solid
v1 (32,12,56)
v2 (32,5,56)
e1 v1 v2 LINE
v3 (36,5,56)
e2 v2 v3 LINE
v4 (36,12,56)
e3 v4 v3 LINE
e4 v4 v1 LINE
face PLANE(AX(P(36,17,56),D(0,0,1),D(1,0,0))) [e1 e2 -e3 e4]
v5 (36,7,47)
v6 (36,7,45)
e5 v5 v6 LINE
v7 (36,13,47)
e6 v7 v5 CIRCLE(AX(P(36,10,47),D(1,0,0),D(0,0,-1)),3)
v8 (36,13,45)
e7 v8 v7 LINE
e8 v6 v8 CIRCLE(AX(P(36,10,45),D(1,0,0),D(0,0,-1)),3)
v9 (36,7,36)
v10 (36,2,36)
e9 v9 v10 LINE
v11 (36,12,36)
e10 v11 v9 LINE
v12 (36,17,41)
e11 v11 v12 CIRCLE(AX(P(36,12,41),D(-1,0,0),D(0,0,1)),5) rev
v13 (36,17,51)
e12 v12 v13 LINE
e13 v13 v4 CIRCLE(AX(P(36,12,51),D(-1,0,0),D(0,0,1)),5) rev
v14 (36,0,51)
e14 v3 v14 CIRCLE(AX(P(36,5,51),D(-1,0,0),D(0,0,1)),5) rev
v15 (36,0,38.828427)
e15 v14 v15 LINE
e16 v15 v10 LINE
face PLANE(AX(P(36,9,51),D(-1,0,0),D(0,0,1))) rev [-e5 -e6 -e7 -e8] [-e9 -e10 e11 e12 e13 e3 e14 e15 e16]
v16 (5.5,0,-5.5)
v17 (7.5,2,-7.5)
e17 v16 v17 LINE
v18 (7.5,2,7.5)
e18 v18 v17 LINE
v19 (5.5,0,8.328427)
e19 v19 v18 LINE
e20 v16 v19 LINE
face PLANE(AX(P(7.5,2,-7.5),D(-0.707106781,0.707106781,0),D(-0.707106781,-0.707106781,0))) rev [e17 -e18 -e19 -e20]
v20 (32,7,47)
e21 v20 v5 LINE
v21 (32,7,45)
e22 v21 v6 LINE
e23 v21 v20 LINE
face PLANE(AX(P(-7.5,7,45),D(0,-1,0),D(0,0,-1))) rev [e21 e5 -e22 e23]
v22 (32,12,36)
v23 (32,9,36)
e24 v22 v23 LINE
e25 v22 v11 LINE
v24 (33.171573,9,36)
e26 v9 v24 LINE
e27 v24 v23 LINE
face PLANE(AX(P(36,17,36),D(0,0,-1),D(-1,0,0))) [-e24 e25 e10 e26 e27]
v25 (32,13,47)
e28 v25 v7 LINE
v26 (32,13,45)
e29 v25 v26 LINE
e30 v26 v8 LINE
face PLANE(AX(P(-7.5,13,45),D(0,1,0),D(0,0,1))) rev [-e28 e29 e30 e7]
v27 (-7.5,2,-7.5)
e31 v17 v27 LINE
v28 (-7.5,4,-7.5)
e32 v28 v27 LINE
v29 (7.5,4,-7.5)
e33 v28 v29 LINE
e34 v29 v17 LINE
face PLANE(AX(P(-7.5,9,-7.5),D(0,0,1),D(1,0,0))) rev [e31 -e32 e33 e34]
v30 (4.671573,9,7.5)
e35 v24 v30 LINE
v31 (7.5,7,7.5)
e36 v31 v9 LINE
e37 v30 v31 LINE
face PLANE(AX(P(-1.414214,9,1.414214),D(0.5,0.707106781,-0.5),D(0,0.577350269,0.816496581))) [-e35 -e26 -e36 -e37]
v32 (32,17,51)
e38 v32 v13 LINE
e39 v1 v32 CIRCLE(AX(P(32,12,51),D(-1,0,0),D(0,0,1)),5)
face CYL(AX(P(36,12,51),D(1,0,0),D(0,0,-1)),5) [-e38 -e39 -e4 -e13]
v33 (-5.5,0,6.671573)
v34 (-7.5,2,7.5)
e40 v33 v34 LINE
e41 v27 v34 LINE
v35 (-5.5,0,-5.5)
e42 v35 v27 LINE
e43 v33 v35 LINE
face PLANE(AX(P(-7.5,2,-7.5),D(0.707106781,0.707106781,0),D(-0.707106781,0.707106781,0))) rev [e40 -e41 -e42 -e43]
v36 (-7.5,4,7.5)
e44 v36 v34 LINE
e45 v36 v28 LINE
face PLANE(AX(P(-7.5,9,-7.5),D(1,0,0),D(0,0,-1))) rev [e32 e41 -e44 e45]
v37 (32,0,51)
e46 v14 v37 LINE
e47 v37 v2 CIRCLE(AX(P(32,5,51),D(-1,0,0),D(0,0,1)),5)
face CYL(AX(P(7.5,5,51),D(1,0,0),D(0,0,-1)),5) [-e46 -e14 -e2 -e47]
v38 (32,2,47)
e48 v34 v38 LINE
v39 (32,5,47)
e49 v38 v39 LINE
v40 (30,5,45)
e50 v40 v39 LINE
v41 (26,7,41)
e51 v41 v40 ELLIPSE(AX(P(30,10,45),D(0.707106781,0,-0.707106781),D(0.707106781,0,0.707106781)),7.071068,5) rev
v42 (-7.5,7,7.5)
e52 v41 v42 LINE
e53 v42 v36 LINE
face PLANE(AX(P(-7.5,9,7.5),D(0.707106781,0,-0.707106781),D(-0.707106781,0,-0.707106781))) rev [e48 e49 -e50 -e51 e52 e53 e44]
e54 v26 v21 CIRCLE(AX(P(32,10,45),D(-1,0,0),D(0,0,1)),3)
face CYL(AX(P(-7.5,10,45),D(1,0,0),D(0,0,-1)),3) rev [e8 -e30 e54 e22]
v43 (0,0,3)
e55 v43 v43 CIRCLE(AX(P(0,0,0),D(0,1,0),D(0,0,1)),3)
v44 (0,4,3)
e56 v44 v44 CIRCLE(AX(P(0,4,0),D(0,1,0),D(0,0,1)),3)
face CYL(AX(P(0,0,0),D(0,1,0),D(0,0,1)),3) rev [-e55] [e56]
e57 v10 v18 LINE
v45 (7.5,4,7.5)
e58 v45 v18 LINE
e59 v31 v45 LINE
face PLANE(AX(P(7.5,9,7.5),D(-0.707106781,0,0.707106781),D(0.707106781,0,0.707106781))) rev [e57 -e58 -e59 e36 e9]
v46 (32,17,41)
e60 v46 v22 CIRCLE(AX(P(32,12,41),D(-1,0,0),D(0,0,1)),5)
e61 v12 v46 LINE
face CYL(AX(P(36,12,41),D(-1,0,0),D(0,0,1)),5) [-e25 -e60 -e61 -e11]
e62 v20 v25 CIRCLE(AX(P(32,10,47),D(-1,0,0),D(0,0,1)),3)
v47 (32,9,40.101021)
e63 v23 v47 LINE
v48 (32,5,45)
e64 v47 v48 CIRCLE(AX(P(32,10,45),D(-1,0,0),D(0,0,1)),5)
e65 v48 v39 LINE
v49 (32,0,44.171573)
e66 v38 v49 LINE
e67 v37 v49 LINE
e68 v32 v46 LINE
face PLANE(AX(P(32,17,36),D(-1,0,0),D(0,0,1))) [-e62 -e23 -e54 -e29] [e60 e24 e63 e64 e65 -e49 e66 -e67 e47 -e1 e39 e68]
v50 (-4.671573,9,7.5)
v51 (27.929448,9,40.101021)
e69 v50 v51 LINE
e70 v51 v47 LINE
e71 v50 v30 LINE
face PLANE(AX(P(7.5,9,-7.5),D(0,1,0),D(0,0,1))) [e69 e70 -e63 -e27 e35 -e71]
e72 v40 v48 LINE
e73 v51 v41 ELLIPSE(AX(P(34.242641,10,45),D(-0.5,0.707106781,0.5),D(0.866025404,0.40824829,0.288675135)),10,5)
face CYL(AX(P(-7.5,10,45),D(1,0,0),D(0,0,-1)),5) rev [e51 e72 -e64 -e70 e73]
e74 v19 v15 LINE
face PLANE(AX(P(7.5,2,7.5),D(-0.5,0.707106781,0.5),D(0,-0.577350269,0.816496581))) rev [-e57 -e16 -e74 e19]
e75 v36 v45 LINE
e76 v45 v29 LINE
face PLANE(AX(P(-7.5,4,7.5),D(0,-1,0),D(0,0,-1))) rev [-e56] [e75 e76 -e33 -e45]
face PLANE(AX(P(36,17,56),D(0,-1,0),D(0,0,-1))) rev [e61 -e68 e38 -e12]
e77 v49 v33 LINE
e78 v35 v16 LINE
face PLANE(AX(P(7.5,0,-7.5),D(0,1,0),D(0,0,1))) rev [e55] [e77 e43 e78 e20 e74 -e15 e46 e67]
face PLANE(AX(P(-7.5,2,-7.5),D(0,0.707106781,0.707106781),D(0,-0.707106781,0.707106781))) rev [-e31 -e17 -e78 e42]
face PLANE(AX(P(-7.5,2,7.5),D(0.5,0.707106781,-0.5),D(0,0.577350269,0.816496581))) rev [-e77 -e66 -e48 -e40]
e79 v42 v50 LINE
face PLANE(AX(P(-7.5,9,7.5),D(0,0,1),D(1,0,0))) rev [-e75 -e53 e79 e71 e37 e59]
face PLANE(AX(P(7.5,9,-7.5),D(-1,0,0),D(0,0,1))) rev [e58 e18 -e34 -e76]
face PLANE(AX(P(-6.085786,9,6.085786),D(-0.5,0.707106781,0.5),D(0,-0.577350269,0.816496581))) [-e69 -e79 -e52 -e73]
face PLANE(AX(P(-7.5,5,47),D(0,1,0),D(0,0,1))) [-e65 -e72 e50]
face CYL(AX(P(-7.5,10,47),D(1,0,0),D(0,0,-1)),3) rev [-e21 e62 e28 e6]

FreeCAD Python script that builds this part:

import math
import FreeCAD as App
import Part
import Sketcher
from FreeCAD import Vector


def edges_at(feature, points):
    """Names of the edges that pass closest to the given points."""
    edges = feature.Shape.Edges
    near = lambda p: min(range(len(edges)), key=lambda i: edges[i].distToShape(Part.Vertex(*p))[0])
    return sorted({f"Edge{near(p) + 1}" for p in points})


def add_polygon(sketch, points):
    """Adds a closed chain of lines whose ends are joined by coincident constraints."""
    first, n = sketch.GeometryCount, len(points)
    for a, b in zip(points, points[1:] + points[:1]):
        sketch.addGeometry(Part.LineSegment(App.Vector(*a, 0), App.Vector(*b, 0)), False)
    for i in range(n):
        sketch.addConstraint(Sketcher.Constraint("Coincident", first + i, 2, first + (i + 1) % n, 1))

doc = App.newDocument("Part")
params = doc.addObject("Spreadsheet::Sheet", "Params")
for row, (alias, value) in enumerate([
    ("sketch1_width", "15 mm"),
    ("pad1_length", "9 mm"),
    ("sketch2_width", "4 mm"),
    ("sketch2_height", "20 mm"),
    ("pad2_length", "17 mm"),
    ("sketch3_width", "5 mm"),
    ("sketch3_height", "15 mm"),
    ("sketch4_diameter", "6 mm"),
    ("sketch5_radius", "3 mm"),
    ("sketch5_height", "2 mm"),
    ("sketch6_radius", "5 mm"),
    ("sketch6_radius2", "3 mm"),
    ("sketch6_height", "2 mm"),
    ("fillet_radius", "5 mm"),
    ("chamfer_size", "2 mm"),
], start=1):
    params.set(f"A{row}", alias)
    params.set(f"B{row}", "=" + value)
    params.setAlias(f"B{row}", alias)

body = doc.addObject("PartDesign::Body", "Body")

# Sketch on XZ plane
sketch1 = body.newObject("Sketcher::SketchObject", "Sketch")
sketch1.AttachmentSupport = (doc.getObject("XZ_Plane"), [""])
sketch1.MapMode = "FlatFace"
add_polygon(sketch1, [(36, 36), (8, 8), (8, -8), (-8, -8), (-8, 8), (36, 51)])  # lines 0-5
sketch1.addConstraint(Sketcher.Constraint("Vertical", 1))
sketch1.addConstraint(Sketcher.Constraint("Horizontal", 2))
sketch1.addConstraint(Sketcher.Constraint("Vertical", 3))
sketch1.addConstraint(Sketcher.Constraint("Vertical", 5))
sketch1.addConstraint(Sketcher.Constraint("Symmetric", 0, 2, 2, 2, -1, 1))
sketch1.addConstraint(Sketcher.Constraint("Parallel", 0, 4))
sketch1.addConstraint(Sketcher.Constraint("Horizontal", 0, 2, 3, 2))
sketch1.addConstraint(Sketcher.Constraint("Equal", 2, 1))
sketch1.addConstraint(Sketcher.Constraint("Equal", 3, 5))
sketch1.addConstraint(Sketcher.Constraint("DistanceX", 2, 2, 2, 1, 15.0))
sketch1.addConstraint(Sketcher.Constraint("DistanceX", -1, 1, 4, 2, 36.0))
sketch1.setExpression("Constraints[15]", "Params.sketch1_width")
pad1 = body.newObject("PartDesign::Pad", "Pad")
pad1.Profile = sketch1
pad1.setExpression("Length", "Params.pad1_length")
pad1.Reversed = True

# Sketch on XZ plane
sketch2 = body.newObject("Sketcher::SketchObject", "Sketch001")
sketch2.AttachmentSupport = (doc.getObject("XZ_Plane"), [""])
sketch2.MapMode = "FlatFace"
add_polygon(sketch2, [(32, 56), (32, 36), (36, 36), (36, 56)])  # lines 0-3
sketch2.addConstraint(Sketcher.Constraint("Vertical", 0))
sketch2.addConstraint(Sketcher.Constraint("Horizontal", 1))
sketch2.addConstraint(Sketcher.Constraint("Vertical", 2))
sketch2.addConstraint(Sketcher.Constraint("Horizontal", 3))
sketch2.addConstraint(Sketcher.Constraint("DistanceX", 1, 1, 1, 2, 4.0))
sketch2.addConstraint(Sketcher.Constraint("DistanceY", 0, 2, 0, 1, 20.0))
sketch2.addConstraint(Sketcher.Constraint("DistanceX", -1, 1, 0, 2, 32.0))
sketch2.addConstraint(Sketcher.Constraint("DistanceY", -1, 1, 0, 2, 36.0))
sketch2.setExpression("Constraints[8]", "Params.sketch2_width")
sketch2.setExpression("Constraints[9]", "Params.sketch2_height")
pad2 = body.newObject("PartDesign::Pad", "Pad001")
pad2.Profile = sketch2
pad2.setExpression("Length", "Params.pad2_length")
pad2.Reversed = True

# Sketch on YZ plane
sketch3 = body.newObject("Sketcher::SketchObject", "Sketch002")
sketch3.AttachmentSupport = (doc.getObject("YZ_Plane"), [""])
sketch3.MapMode = "FlatFace"
sketch3.AttachmentOffset = App.Placement(Vector(0, 0, 7.5), App.Rotation())
add_polygon(sketch3, [(9, 8), (4, 8), (4, -8), (9, -8)])  # lines 0-3
sketch3.addConstraint(Sketcher.Constraint("Horizontal", 0))
sketch3.addConstraint(Sketcher.Constraint("Vertical", 1))
sketch3.addConstraint(Sketcher.Constraint("Horizontal", 2))
sketch3.addConstraint(Sketcher.Constraint("Vertical", 3))
sketch3.addConstraint(Sketcher.Constraint("DistanceX", 0, 2, 0, 1, 5.0))
sketch3.addConstraint(Sketcher.Constraint("DistanceY", 1, 2, 1, 1, 15.0))
sketch3.addConstraint(Sketcher.Constraint("DistanceX", -1, 1, 0, 2, 4.0))
sketch3.addConstraint(Sketcher.Constraint("DistanceY", -1, 1, 0, 2, 7.5))
sketch3.setExpression("Constraints[8]", "Params.sketch3_width")
sketch3.setExpression("Constraints[9]", "Params.sketch3_height")
pocket1 = body.newObject("PartDesign::Pocket", "Pocket")
pocket1.Profile = sketch3
pocket1.Type = "ThroughAll"

# Sketch on XZ plane
sketch4 = body.newObject("Sketcher::SketchObject", "Sketch003")
sketch4.AttachmentSupport = (doc.getObject("XZ_Plane"), [""])
sketch4.MapMode = "FlatFace"
sketch4.AttachmentOffset = App.Placement(Vector(0, 0, -4), App.Rotation())
sketch4.addGeometry(Part.Circle(Vector(0, 0, 0), Vector(0, 0, 1), 3), False)
sketch4.addConstraint(Sketcher.Constraint("Coincident", 0, 3, -1, 1))
sketch4.addConstraint(Sketcher.Constraint("Diameter", 0, 6.0))
sketch4.setExpression("Constraints[1]", "Params.sketch4_diameter")
pocket2 = body.newObject("PartDesign::Pocket", "Pocket001")
pocket2.Profile = sketch4
pocket2.Type = "ThroughAll"
pocket2.Reversed = True

# Sketch on YZ plane
sketch5 = body.newObject("Sketcher::SketchObject", "Sketch004")
sketch5.AttachmentSupport = (doc.getObject("YZ_Plane"), [""])
sketch5.MapMode = "FlatFace"
sketch5.AttachmentOffset = App.Placement(Vector(0, 0, 36), App.Rotation())
sketch5.addGeometry(Part.LineSegment(Vector(7, 47, 0), Vector(7, 45, 0)), False)
sketch5.addGeometry(Part.ArcOfCircle(Part.Circle(Vector(10, 45, 0), Vector(0, 0, 1), 3), math.radians(180), math.radians(360)), False)
sketch5.addGeometry(Part.LineSegment(Vector(13, 45, 0), Vector(13, 47, 0)), False)
sketch5.addGeometry(Part.ArcOfCircle(Part.Circle(Vector(10, 47, 0), Vector(0, 0, 1), 3), math.radians(0), math.radians(180)), False)
sketch5.addConstraint(Sketcher.Constraint("Tangent", 0, 2, 1, 1))
sketch5.addConstraint(Sketcher.Constraint("Tangent", 1, 2, 2, 1))
sketch5.addConstraint(Sketcher.Constraint("Tangent", 2, 2, 3, 1))
sketch5.addConstraint(Sketcher.Constraint("Tangent", 3, 2, 0, 1))
sketch5.addConstraint(Sketcher.Constraint("Vertical", 0))
sketch5.addConstraint(Sketcher.Constraint("Vertical", 2))
sketch5.addConstraint(Sketcher.Constraint("Radius", 1, 3.0))
sketch5.addConstraint(Sketcher.Constraint("DistanceY", 0, 2, 0, 1, 2.0))
sketch5.addConstraint(Sketcher.Constraint("DistanceX", -1, 1, 1, 3, 10.0))
sketch5.addConstraint(Sketcher.Constraint("DistanceY", -1, 1, 1, 3, 45.0))
sketch5.setExpression("Constraints[6]", "Params.sketch5_radius")
sketch5.setExpression("Constraints[7]", "Params.sketch5_height")
pocket3 = body.newObject("PartDesign::Pocket", "Pocket002")
pocket3.Profile = sketch5
pocket3.Type = "ThroughAll"

# Sketch on YZ plane
sketch6 = body.newObject("Sketcher::SketchObject", "Sketch005")
sketch6.AttachmentSupport = (doc.getObject("YZ_Plane"), [""])
sketch6.MapMode = "FlatFace"
sketch6.AttachmentOffset = App.Placement(Vector(0, 0, 32), App.Rotation())
sketch6.addGeometry(Part.LineSegment(Vector(5, 45, 0), Vector(5, 47, 0)), False)
sketch6.addGeometry(Part.ArcOfCircle(Part.Circle(Vector(10, 47, 0), Vector(0, 0, 1), 5), math.radians(109), math.radians(180)), False)
sketch6.addGeometry(Part.ArcOfCircle(Part.Circle(Vector(10, 47, 0), Vector(0, 0, 1), 5), math.radians(0), math.radians(109)), False)
sketch6.addGeometry(Part.LineSegment(Vector(15, 47, 0), Vector(15, 45, 0)), False)
sketch6.addGeometry(Part.ArcOfCircle(Part.Circle(Vector(10, 45, 0), Vector(0, 0, 1), 5), math.radians(-109), math.radians(0)), False)
sketch6.addGeometry(Part.ArcOfCircle(Part.Circle(Vector(10, 45, 0), Vector(0, 0, 1), 5), math.radians(180), math.radians(251)), False)
sketch6.addGeometry(Part.LineSegment(Vector(7, 47, 0), Vector(7, 45, 0)), False)
sketch6.addGeometry(Part.ArcOfCircle(Part.Circle(Vector(10, 45, 0), Vector(0, 0, 1), 3), math.radians(180), math.radians(251)), False)
sketch6.addGeometry(Part.ArcOfCircle(Part.Circle(Vector(10, 45, 0), Vector(0, 0, 1), 3), math.radians(-109), math.radians(0)), False)
sketch6.addGeometry(Part.LineSegment(Vector(13, 45, 0), Vector(13, 47, 0)), False)
sketch6.addGeometry(Part.ArcOfCircle(Part.Circle(Vector(10, 47, 0), Vector(0, 0, 1), 3), math.radians(0), math.radians(109)), False)
sketch6.addGeometry(Part.ArcOfCircle(Part.Circle(Vector(10, 47, 0), Vector(0, 0, 1), 3), math.radians(109), math.radians(180)), False)
sketch6.addConstraint(Sketcher.Constraint("Tangent", 0, 2, 1, 2))
sketch6.addConstraint(Sketcher.Constraint("Tangent", 1, 1, 2, 2))
sketch6.addConstraint(Sketcher.Constraint("Tangent", 2, 1, 3, 1))
sketch6.addConstraint(Sketcher.Constraint("Tangent", 3, 2, 4, 2))
sketch6.addConstraint(Sketcher.Constraint("Tangent", 4, 1, 5, 2))
sketch6.addConstraint(Sketcher.Constraint("Tangent", 5, 1, 0, 1))
sketch6.addConstraint(Sketcher.Constraint("Tangent", 6, 2, 7, 1))
sketch6.addConstraint(Sketcher.Constraint("Tangent", 7, 2, 8, 1))
sketch6.addConstraint(Sketcher.Constraint("Tangent", 8, 2, 9, 1))
sketch6.addConstraint(Sketcher.Constraint("Tangent", 9, 2, 10, 1))
sketch6.addConstraint(Sketcher.Constraint("Tangent", 10, 2, 11, 1))
sketch6.addConstraint(Sketcher.Constraint("Tangent", 11, 2, 6, 1))
sketch6.addConstraint(Sketcher.Constraint("Vertical", 0))
sketch6.addConstraint(Sketcher.Constraint("Vertical", 3))
sketch6.addConstraint(Sketcher.Constraint("Vertical", 6))
sketch6.addConstraint(Sketcher.Constraint("Vertical", 9))
sketch6.addConstraint(Sketcher.Constraint("Coincident", 7, 3, 4, 3))
sketch6.addConstraint(Sketcher.Constraint("Coincident", 10, 3, 1, 3))
sketch6.addConstraint(Sketcher.Constraint("Equal", 1, 2))
sketch6.addConstraint(Sketcher.Constraint("Equal", 2, 4))
sketch6.addConstraint(Sketcher.Constraint("Equal", 7, 8))
sketch6.addConstraint(Sketcher.Constraint("Vertical", 1, 1, 4, 1))
sketch6.addConstraint(Sketcher.Constraint("Vertical", 7, 2, 10, 2))
sketch6.addConstraint(Sketcher.Constraint("Radius", 1, 5.0))
sketch6.addConstraint(Sketcher.Constraint("Radius", 7, 3.0))
sketch6.addConstraint(Sketcher.Constraint("DistanceY", 0, 1, 0, 2, 2.0))
sketch6.addConstraint(Sketcher.Constraint("DistanceX", -1, 1, 1, 3, 10.0))
sketch6.addConstraint(Sketcher.Constraint("DistanceY", -1, 1, 1, 3, 47.0))
sketch6.addConstraint(Sketcher.Constraint("DistanceX", -1, 1, 7, 2, 9.0))
sketch6.addConstraint(Sketcher.Constraint("DistanceY", 4, 1, 7, 2, 1.885618))
sketch6.setExpression("Constraints[23]", "Params.sketch6_radius")
sketch6.setExpression("Constraints[24]", "Params.sketch6_radius2")
sketch6.setExpression("Constraints[25]", "Params.sketch6_height")
pocket4 = body.newObject("PartDesign::Pocket", "Pocket003")
pocket4.Profile = sketch6
pocket4.Type = "ThroughAll"
doc.recompute()

fillet = body.newObject("PartDesign::Fillet", "Fillet")
fillet.Base = (pocket4, edges_at(pocket4, [(34, 0, 56), (34, 17, 36), (34, 17, 56)]))
fillet.setExpression("Radius", "Params.fillet_radius")
doc.recompute()

chamfer = body.newObject("PartDesign::Chamfer", "Chamfer")
chamfer.Base = (fillet, edges_at(fillet, [
    (21.75, 0, 21.75),
    (7.5, 0, 0),
    (0, 0, -7.5),
    (-7.5, 0, 0),
    (12.25, 0, 27.25),
    (8.801, 9, 23.801),
    (21.75, 9, 21.75),
]))
chamfer.setExpression("Size", "Params.chamfer_size")

doc.recompute()
